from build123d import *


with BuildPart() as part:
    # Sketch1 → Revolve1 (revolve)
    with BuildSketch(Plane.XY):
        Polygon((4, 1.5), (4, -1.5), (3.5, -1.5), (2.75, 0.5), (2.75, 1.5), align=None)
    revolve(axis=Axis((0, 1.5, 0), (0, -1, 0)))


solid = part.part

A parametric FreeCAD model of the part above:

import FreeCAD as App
import Part
import Sketcher

doc = App.newDocument("Part")
params = doc.addObject("Spreadsheet::Sheet", "Params")
for row, (alias, value) in enumerate([
    ("sketch1_height", "3 mm"),
    ("sketch1_height2", "1 mm"),
    ("sketch1_width", "0.5 mm"),
    ("sketch1_width2", "1.25 mm"),
    ("revolution_angle", "360 deg"),
], start=1):
    params.set(f"A{row}", alias)
    params.set(f"B{row}", "=" + value)
    params.setAlias(f"B{row}", alias)

body = doc.addObject("PartDesign::Body", "Body")

# Sketch on XY plane
sketch1 = body.newObject("Sketcher::SketchObject", "Sketch")
sketch1.AttachmentSupport = (doc.getObject("XY_Plane"), [""])
sketch1.MapMode = "FlatFace"
sketch1.addGeometry([
    Part.LineSegment(App.Vector(4, -1.5, 0), App.Vector(4, 1.5, 0)),  # 0
    Part.LineSegment(App.Vector(4, 1.5, 0), App.Vector(2.75, 1.5, 0)),  # 1
    Part.LineSegment(App.Vector(2.75, 1.5, 0), App.Vector(2.75, 0.5, 0)),  # 2
    Part.LineSegment(App.Vector(2.75, 0.5, 0), App.Vector(3.5, -1.5, 0)),  # 3
    Part.LineSegment(App.Vector(3.5, -1.5, 0), App.Vector(4, -1.5, 0)),  # 4
], False)
sketch1.addConstraint([
    Sketcher.Constraint("Coincident", 0, 2, 1, 1),
    Sketcher.Constraint("Coincident", 1, 2, 2, 1),
    Sketcher.Constraint("Coincident", 2, 2, 3, 1),
    Sketcher.Constraint("Coincident", 3, 2, 4, 1),
    Sketcher.Constraint("Coincident", 4, 2, 0, 1),
    Sketcher.Constraint("Vertical", 0),
    Sketcher.Constraint("Horizontal", 1),
    Sketcher.Constraint("Vertical", 2),
    Sketcher.Constraint("Horizontal", 4),
    Sketcher.Constraint("DistanceY", 0, 1, 0, 2, 3.0),
    Sketcher.Constraint("DistanceY", 2, 2, 2, 1, 1.0),
    Sketcher.Constraint("DistanceX", 4, 1, 4, 2, 0.5),
    Sketcher.Constraint("DistanceX", -1, 1, 0, 2, 4.0),
    Sketcher.Constraint("DistanceX", 1, 2, 1, 1, 1.25),
    Sketcher.Constraint("DistanceY", -1, 1, 0, 2, 1.5),
])
sketch1.setExpression("Constraints[9]", "Params.sketch1_height")
sketch1.setExpression("Constraints[10]", "Params.sketch1_height2")
sketch1.setExpression("Constraints[11]", "Params.sketch1_width")
sketch1.setExpression("Constraints[13]", "Params.sketch1_width2")
revolution = body.newObject("PartDesign::Revolution", "Revolution")
revolution.Profile = sketch1
revolution.ReferenceAxis = (sketch1, ["V_Axis"])
revolution.setExpression("Angle", "Params.revolution_angle")

doc.recompute()
